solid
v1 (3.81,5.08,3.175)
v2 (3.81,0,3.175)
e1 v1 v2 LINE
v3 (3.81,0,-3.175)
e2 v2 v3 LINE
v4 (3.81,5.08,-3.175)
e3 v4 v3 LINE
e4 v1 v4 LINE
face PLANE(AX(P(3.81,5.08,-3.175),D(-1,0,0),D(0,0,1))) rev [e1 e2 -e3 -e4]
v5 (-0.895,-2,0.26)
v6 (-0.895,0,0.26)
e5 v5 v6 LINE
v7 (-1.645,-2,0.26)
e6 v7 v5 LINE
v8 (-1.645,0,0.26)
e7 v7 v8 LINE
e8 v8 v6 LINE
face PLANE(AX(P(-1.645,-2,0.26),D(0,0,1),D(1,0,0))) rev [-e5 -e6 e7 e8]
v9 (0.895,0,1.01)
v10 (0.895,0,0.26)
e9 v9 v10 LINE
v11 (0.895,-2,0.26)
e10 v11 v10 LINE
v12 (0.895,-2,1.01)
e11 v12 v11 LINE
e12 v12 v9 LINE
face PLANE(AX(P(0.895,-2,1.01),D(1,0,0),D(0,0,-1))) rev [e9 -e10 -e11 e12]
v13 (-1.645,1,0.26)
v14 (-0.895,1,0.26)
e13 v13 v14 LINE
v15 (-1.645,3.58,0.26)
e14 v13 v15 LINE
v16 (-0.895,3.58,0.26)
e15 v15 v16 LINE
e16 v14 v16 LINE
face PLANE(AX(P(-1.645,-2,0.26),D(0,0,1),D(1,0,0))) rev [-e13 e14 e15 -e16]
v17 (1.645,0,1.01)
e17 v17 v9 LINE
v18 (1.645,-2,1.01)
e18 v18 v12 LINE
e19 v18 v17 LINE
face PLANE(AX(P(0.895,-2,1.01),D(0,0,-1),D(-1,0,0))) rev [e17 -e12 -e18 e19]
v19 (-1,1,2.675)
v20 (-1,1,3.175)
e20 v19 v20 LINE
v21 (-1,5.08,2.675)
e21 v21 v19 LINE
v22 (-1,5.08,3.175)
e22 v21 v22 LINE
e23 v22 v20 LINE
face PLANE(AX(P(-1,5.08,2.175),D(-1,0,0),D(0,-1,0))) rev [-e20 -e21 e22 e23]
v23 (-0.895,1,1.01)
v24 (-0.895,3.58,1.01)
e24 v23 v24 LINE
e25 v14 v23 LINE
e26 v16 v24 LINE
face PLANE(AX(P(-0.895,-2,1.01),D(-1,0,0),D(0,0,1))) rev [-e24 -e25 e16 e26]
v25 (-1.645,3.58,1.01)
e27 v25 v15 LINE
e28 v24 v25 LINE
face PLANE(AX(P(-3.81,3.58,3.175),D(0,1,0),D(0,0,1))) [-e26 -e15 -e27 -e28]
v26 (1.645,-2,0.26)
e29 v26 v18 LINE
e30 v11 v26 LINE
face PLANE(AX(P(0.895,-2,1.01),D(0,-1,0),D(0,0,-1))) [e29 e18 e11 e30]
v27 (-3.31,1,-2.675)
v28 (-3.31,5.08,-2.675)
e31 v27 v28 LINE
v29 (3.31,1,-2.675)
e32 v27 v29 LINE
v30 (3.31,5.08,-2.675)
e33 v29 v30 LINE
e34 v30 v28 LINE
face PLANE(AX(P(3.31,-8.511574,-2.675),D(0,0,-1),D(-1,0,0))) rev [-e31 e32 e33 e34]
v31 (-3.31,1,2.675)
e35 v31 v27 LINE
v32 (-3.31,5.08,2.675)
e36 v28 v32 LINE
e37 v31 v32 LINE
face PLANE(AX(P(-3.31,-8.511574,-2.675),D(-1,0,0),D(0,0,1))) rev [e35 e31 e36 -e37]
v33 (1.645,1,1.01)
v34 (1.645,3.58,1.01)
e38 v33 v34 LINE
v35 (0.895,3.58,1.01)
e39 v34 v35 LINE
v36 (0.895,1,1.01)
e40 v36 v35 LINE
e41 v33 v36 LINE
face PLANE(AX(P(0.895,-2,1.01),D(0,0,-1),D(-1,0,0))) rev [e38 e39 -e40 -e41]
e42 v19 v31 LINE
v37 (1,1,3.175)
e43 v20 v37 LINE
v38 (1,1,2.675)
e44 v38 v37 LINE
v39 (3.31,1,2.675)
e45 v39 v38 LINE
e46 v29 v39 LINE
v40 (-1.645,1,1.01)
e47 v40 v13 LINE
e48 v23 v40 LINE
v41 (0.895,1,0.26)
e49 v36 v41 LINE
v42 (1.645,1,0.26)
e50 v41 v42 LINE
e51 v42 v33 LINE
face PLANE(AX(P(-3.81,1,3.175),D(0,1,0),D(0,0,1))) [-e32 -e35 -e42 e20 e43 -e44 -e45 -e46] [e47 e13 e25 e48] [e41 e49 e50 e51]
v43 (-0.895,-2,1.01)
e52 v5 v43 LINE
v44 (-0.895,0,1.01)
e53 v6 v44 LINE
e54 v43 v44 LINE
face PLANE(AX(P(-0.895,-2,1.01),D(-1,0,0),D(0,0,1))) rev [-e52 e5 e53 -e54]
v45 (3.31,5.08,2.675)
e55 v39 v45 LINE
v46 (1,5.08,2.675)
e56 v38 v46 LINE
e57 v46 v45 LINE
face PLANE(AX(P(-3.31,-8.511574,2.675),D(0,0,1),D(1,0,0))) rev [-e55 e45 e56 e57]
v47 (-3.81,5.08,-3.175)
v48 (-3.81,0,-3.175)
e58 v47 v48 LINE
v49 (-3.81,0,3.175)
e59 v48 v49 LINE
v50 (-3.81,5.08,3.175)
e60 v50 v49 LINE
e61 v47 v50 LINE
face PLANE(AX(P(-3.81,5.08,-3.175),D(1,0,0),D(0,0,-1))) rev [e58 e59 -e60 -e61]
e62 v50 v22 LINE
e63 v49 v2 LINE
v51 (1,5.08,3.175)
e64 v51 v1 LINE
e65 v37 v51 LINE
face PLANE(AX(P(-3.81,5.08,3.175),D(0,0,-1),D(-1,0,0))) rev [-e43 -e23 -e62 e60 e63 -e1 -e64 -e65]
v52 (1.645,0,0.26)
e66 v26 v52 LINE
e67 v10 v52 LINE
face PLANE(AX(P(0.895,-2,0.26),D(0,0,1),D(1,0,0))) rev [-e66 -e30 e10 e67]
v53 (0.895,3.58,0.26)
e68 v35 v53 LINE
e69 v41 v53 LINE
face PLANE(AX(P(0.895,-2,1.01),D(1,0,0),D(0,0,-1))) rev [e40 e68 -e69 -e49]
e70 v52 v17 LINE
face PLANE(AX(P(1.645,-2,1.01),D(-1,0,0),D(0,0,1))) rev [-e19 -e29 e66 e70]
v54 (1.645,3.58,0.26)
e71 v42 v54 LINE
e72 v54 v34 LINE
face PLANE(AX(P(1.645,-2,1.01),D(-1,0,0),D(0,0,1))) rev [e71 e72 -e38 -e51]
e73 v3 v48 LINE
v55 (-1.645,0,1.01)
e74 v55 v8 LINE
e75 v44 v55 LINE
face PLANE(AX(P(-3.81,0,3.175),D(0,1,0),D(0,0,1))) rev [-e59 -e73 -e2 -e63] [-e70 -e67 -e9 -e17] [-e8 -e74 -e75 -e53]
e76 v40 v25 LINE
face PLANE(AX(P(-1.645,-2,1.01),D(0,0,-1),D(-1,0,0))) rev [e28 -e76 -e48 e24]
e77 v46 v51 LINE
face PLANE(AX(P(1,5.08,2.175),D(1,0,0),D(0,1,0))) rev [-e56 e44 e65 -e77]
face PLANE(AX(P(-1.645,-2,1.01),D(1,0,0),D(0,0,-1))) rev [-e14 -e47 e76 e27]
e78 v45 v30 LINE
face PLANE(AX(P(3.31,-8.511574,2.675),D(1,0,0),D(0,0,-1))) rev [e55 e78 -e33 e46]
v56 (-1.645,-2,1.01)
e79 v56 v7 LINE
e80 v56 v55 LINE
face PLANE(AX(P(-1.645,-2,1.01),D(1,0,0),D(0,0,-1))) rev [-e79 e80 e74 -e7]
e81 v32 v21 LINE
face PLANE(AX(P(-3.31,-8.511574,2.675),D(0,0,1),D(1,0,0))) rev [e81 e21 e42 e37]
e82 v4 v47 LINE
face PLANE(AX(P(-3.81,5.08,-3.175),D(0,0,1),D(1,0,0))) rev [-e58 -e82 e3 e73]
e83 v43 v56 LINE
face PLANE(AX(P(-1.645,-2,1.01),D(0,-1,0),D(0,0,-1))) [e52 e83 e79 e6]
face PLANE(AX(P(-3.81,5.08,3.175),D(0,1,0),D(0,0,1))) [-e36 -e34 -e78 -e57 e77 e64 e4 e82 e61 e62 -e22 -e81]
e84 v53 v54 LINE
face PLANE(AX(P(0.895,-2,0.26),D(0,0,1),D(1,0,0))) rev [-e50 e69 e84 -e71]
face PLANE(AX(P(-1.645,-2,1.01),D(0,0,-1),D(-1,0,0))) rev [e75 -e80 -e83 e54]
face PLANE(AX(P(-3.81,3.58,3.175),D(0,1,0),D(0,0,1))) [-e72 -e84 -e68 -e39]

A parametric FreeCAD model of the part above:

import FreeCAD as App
import Part
import Sketcher
Q = App.Units.Quantity


def add_polygon(sketch, points):
    """Adds a closed chain of lines whose ends are joined by coincident constraints."""
    first, n = sketch.GeometryCount, len(points)
    for a, b in zip(points, points[1:] + points[:1]):
        sketch.addGeometry(Part.LineSegment(App.Vector(*a, 0), App.Vector(*b, 0)), False)
    for i in range(n):
        sketch.addConstraint(Sketcher.Constraint("Coincident", first + i, 2, first + (i + 1) % n, 1))

doc = App.newDocument("Part")
params = doc.addObject("Spreadsheet::Sheet", "Params")
for row, (alias, value) in enumerate([
    ("sketch1_width", "0.3 in"),
    ("sketch1_height", "0.25 in"),
    ("pad1_length", "0.2 in"),
    ("pocket1_length", "4.08 mm"),
    ("pocket2_length", "1 mm"),
    ("pad2_length", "2 mm"),
    ("pad2_length2", "3.58 mm"),
], start=1):
    params.set(f"A{row}", alias)
    params.set(f"B{row}", "=" + value)
    params.setAlias(f"B{row}", alias)

body = doc.addObject("PartDesign::Body", "Body")

sketch1 = body.newObject("Sketcher::SketchObject", "Sketch")
sketch1.AttachmentSupport = (doc.getObject("XZ_Plane"), [""])
sketch1.MapMode = "FlatFace"
add_polygon(sketch1, [(-4, -3), (-4, 3), (4, 3), (4, -3)])
sketch1.addConstraint([
    Sketcher.Constraint("Vertical", 0),
    Sketcher.Constraint("Horizontal", 1),
    Sketcher.Constraint("Vertical", 2),
    Sketcher.Constraint("Horizontal", 3),
    Sketcher.Constraint("Symmetric", 0, 2, 2, 2, -1, 1),
    Sketcher.Constraint("DistanceX", 1, 1, 1, 2, Q("0.3 in")),
    Sketcher.Constraint("DistanceY", 0, 1, 0, 2, Q("0.25 in")),
])
sketch1.setExpression("Constraints[9]", "Params.sketch1_width")
sketch1.setExpression("Constraints[10]", "Params.sketch1_height")
pad1 = body.newObject("PartDesign::Pad", "Pad")
pad1.Profile = sketch1
pad1.setExpression("Length", "Params.pad1_length")
pad1.Reversed = True

sketch2 = body.newObject("Sketcher::SketchObject", "Sketch001")
sketch2.AttachmentSupport = (doc.getObject("XZ_Plane"), [""])
sketch2.MapMode = "FlatFace"
sketch2.AttachmentOffset = App.Placement(App.Vector(0, 0, -0.2 * 25.4), App.Rotation())
add_polygon(sketch2, [(3, 3), (3, -3), (-3, -3), (-3, 3)])
sketch2.addConstraint([
    Sketcher.Constraint("Vertical", 0),
    Sketcher.Constraint("Horizontal", 1),
    Sketcher.Constraint("Vertical", 2),
    Sketcher.Constraint("Horizontal", 3),
    Sketcher.Constraint("Symmetric", 0, 2, 2, 2, -1, 1),
    Sketcher.Constraint("DistanceX", 1, 2, 1, 1, 6.62),
    Sketcher.Constraint("DistanceY", 0, 2, 0, 1, 5.35),
])
pocket1 = body.newObject("PartDesign::Pocket", "Pocket")
pocket1.Profile = sketch2
pocket1.setExpression("Length", "Params.pocket1_length")
pocket1.Reversed = True

sketch3 = body.newObject("Sketcher::SketchObject", "Sketch002")
sketch3.AttachmentSupport = (doc.getObject("XY_Plane"), [""])
sketch3.MapMode = "FlatFace"
sketch3.AttachmentOffset = App.Placement(App.Vector(0, 0, 0.125 * 25.4), App.Rotation())
add_polygon(sketch3, [(-1, 5.1), (-1, 1), (1, 1), (1, 5.1)])
sketch3.addConstraint([
    Sketcher.Constraint("Vertical", 0),
    Sketcher.Constraint("Horizontal", 1),
    Sketcher.Constraint("Vertical", 2),
    Sketcher.Constraint("Horizontal", 3),
    Sketcher.Constraint("DistanceY", -1, 1, 2, 2, Q("0.2 in")),
    Sketcher.Constraint("DistanceX", 1, 1, 1, 2, 2.0),
    Sketcher.Constraint("DistanceY", 0, 2, 0, 1, 4.08),
    Sketcher.Constraint("DistanceX", 0, 2, -1, 1, 1.0),
])
pocket2 = body.newObject("PartDesign::Pocket", "Pocket001")
pocket2.Profile = sketch3
pocket2.setExpression("Length", "Params.pocket2_length")

sketch4 = body.newObject("Sketcher::SketchObject", "Sketch003")
sketch4.AttachmentSupport = (doc.getObject("XZ_Plane"), [""])
sketch4.MapMode = "FlatFace"
add_polygon(sketch4, [(-1.6, 1), (-1.6, 0.3), (-0.9, 0.3), (-0.9, 1)])
add_polygon(sketch4, [(0.9, 1), (0.9, 0.3), (1.6, 0.3), (1.6, 1)])
sketch4.addConstraint([
    Sketcher.Constraint("Vertical", 0),
    Sketcher.Constraint("Horizontal", 1),
    Sketcher.Constraint("Vertical", 2),
    Sketcher.Constraint("Horizontal", 3),
    Sketcher.Constraint("Vertical", 4),
    Sketcher.Constraint("Horizontal", 5),
    Sketcher.Constraint("Vertical", 6),
    Sketcher.Constraint("Horizontal", 7),
    Sketcher.Constraint("Symmetric", 1, 2, 4, 2, -2),
    Sketcher.Constraint("Symmetric", 3, 2, 6, 2, -2),
    Sketcher.Constraint("Equal", 7, 0),
    Sketcher.Constraint("DistanceX", 0, 2, 4, 2, Q("0.1 in")),
    Sketcher.Constraint("DistanceX", 1, 1, 1, 2, 0.75),
    Sketcher.Constraint("DistanceY", -1, 1, 0, 2, 0.26),
])
pad2 = body.newObject("PartDesign::Pad", "Pad001")
pad2.Profile = sketch4
pad2.Type = "TwoLengths"
pad2.setExpression("Length", "Params.pad2_length")
pad2.setExpression("Length2", "Params.pad2_length2")

doc.recompute()
